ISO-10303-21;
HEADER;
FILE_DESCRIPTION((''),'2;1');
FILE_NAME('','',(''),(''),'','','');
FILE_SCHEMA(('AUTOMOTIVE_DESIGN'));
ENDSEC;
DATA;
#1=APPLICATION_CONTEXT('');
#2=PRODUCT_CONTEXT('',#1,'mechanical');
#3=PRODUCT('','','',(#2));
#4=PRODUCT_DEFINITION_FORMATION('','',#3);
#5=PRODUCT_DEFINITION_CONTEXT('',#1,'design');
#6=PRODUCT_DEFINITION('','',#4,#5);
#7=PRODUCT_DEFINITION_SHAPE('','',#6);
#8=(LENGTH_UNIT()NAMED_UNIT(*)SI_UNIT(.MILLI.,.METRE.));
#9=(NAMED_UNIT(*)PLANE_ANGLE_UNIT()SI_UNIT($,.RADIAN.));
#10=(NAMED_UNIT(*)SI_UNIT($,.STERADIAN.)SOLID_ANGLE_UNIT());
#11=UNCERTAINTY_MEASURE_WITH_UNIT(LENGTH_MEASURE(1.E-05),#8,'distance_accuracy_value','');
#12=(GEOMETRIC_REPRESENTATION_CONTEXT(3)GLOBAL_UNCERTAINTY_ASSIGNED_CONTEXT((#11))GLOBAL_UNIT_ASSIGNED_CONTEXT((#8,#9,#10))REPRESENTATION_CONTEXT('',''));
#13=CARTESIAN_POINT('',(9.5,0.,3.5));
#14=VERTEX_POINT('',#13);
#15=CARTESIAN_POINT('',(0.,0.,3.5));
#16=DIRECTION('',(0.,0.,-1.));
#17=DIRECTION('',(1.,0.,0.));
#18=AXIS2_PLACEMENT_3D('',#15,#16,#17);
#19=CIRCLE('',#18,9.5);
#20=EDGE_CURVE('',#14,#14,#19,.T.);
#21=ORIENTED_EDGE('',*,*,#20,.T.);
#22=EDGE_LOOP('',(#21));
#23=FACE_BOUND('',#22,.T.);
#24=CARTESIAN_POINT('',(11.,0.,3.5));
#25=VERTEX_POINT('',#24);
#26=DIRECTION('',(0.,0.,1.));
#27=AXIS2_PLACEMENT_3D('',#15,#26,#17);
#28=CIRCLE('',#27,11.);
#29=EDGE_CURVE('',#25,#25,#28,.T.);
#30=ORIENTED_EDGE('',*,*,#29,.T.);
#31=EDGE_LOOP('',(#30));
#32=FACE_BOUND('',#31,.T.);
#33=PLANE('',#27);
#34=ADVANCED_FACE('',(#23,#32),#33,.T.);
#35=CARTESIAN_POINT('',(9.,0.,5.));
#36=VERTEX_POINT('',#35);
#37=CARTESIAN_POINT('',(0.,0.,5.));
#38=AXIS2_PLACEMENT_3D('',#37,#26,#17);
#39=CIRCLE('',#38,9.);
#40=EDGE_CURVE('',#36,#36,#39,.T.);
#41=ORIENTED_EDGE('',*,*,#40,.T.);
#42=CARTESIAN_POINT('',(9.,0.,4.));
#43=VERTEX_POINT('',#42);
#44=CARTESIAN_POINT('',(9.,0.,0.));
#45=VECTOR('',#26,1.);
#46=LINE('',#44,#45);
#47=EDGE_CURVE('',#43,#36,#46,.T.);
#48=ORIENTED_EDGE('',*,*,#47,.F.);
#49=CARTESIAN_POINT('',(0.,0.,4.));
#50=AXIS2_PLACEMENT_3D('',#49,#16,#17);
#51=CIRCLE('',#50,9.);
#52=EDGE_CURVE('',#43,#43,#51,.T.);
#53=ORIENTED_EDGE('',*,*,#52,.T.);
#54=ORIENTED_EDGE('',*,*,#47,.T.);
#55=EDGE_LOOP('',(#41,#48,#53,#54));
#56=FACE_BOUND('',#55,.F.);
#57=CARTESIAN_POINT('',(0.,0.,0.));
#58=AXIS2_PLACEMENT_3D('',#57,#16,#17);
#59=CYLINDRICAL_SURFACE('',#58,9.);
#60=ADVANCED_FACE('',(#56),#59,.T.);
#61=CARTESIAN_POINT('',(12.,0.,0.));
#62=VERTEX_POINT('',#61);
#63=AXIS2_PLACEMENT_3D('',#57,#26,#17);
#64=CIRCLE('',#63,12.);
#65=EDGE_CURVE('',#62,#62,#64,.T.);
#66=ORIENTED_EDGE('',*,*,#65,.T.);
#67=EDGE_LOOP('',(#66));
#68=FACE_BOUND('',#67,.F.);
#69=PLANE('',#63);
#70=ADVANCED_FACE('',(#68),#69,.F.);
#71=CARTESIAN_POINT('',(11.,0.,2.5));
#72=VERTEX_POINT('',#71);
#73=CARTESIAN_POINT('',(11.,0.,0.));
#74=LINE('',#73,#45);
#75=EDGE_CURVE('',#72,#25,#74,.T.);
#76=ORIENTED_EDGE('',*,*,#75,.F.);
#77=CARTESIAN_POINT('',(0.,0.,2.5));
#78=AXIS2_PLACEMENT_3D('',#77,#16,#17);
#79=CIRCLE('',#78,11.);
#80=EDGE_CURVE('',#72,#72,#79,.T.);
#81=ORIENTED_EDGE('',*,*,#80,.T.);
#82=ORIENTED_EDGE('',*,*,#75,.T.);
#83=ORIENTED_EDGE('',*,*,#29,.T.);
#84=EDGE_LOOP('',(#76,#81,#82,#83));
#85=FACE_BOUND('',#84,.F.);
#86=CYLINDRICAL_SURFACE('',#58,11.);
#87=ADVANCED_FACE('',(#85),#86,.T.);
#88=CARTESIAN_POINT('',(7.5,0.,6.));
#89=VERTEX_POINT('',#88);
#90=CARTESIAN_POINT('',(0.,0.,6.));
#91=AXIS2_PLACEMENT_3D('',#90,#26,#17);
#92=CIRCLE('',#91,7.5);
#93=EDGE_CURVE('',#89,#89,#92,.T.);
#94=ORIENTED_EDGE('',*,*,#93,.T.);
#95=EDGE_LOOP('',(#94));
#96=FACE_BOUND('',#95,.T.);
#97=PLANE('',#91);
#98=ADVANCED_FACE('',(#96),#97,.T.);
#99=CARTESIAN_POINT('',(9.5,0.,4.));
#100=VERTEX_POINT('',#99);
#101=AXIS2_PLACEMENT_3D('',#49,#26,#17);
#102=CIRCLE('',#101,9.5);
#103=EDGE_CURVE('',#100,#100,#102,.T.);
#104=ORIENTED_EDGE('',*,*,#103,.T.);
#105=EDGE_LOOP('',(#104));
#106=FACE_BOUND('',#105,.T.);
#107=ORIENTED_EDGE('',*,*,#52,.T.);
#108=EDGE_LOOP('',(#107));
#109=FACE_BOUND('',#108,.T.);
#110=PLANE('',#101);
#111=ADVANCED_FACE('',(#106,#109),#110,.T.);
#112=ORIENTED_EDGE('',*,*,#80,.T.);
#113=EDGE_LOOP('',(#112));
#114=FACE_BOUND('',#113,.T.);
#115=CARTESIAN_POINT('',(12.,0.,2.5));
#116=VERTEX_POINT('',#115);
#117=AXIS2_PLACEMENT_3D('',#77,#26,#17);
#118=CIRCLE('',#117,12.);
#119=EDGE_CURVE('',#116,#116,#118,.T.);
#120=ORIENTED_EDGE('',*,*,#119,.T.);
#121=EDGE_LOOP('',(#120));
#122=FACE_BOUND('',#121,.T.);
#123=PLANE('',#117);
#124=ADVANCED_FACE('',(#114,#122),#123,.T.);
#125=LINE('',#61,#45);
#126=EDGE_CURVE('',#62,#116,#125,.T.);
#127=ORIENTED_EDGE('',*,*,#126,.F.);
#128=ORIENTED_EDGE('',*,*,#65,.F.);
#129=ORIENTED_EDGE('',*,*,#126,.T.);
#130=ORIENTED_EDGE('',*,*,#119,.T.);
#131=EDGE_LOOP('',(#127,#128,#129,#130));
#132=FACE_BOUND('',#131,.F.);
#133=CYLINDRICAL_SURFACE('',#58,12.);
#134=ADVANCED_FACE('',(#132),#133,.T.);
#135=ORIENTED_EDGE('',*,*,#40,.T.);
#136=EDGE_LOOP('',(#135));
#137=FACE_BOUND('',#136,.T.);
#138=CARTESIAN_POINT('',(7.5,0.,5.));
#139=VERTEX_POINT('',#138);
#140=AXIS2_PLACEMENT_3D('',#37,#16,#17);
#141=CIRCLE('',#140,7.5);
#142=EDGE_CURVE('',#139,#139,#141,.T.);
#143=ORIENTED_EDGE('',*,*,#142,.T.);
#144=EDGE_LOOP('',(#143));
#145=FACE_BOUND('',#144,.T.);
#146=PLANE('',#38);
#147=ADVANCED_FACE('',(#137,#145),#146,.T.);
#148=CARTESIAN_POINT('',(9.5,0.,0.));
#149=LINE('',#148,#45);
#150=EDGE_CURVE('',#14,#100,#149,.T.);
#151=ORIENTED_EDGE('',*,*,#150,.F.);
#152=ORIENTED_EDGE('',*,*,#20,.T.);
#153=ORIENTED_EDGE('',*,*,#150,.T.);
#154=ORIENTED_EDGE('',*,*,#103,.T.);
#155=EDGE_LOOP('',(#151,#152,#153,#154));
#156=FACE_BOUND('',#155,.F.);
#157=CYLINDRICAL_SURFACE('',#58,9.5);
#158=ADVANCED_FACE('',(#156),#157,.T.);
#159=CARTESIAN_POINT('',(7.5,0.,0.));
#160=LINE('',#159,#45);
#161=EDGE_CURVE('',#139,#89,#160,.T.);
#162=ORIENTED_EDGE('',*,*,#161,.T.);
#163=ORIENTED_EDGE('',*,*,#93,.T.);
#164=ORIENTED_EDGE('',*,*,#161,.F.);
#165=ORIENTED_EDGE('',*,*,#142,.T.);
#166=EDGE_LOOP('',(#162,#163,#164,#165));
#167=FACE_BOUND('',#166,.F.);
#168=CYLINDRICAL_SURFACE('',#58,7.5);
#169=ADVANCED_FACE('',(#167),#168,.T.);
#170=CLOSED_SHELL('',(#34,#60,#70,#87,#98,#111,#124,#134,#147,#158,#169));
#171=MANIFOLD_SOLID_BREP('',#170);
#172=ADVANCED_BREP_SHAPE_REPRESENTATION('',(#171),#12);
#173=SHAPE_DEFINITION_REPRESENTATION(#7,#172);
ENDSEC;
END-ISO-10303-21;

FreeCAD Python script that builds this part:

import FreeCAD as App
import Part
import Sketcher

V = App.Vector

doc = App.newDocument("Part")
params = doc.addObject("Spreadsheet::Sheet", "Params")
for row, (alias, value) in enumerate([
    ("sketch1_diameter", "18 mm"),
    ("pad1_length", "5 mm"),
    ("sketch2_diameter", "19 mm"),
    ("pad2_length", "4 mm"),
    ("sketch3_diameter", "22 mm"),
    ("pad3_length", "3.5 mm"),
    ("sketch4_diameter", "24 mm"),
    ("pad4_length", "2.5 mm"),
    ("sketch5_diameter", "15 mm"),
    ("pad5_length", "6 mm"),
], start=1):
    params.set(f"A{row}", alias)
    params.set(f"B{row}", "=" + value)
    params.setAlias(f"B{row}", alias)

body = doc.addObject("PartDesign::Body", "Body")

sketch1 = doc.addObject("Sketcher::SketchObject", "Sketch")
body.addObject(sketch1)
sketch1.AttachmentSupport = (doc.XY_Plane, [""])
sketch1.MapMode = "FlatFace"
sketch1.addGeometry(Part.Circle(V(0, 0, 0), V(0, 0, 1), 9), False)
sketch1.addConstraint(Sketcher.Constraint("Coincident", 0, 3, -1, 1))
sketch1.addConstraint(Sketcher.Constraint("Diameter", 0, 18.0))
sketch1.setExpression("Constraints[1]", "Params.sketch1_diameter")
pad1 = doc.addObject("PartDesign::Pad", "Pad")
body.addObject(pad1)
pad1.Profile = sketch1
pad1.setExpression("Length", "Params.pad1_length")
body2 = doc.addObject("PartDesign::Body", "Body001")

sketch2 = doc.addObject("Sketcher::SketchObject", "Sketch001")
body2.addObject(sketch2)
sketch2.AttachmentSupport = (doc.getObject("XY_Plane001"), [""])
sketch2.MapMode = "FlatFace"
sketch2.addGeometry(Part.Circle(V(0, 0, 0), V(0, 0, 1), 9.5), False)
sketch2.addConstraint(Sketcher.Constraint("Coincident", 0, 3, -1, 1))
sketch2.addConstraint(Sketcher.Constraint("Diameter", 0, 19.0))
sketch2.setExpression("Constraints[1]", "Params.sketch2_diameter")
pad2 = doc.addObject("PartDesign::Pad", "Pad001")
body2.addObject(pad2)
pad2.Profile = sketch2
pad2.setExpression("Length", "Params.pad2_length")
body3 = doc.addObject("PartDesign::Body", "Body002")

sketch3 = doc.addObject("Sketcher::SketchObject", "Sketch002")
body3.addObject(sketch3)
sketch3.AttachmentSupport = (doc.getObject("XY_Plane002"), [""])
sketch3.MapMode = "FlatFace"
sketch3.addGeometry(Part.Circle(V(0, 0, 0), V(0, 0, 1), 11), False)
sketch3.addConstraint(Sketcher.Constraint("Coincident", 0, 3, -1, 1))
sketch3.addConstraint(Sketcher.Constraint("Diameter", 0, 22.0))
sketch3.setExpression("Constraints[1]", "Params.sketch3_diameter")
pad3 = doc.addObject("PartDesign::Pad", "Pad002")
body3.addObject(pad3)
pad3.Profile = sketch3
pad3.setExpression("Length", "Params.pad3_length")
body4 = doc.addObject("PartDesign::Body", "Body003")

sketch4 = doc.addObject("Sketcher::SketchObject", "Sketch003")
body4.addObject(sketch4)
sketch4.AttachmentSupport = (doc.getObject("XY_Plane003"), [""])
sketch4.MapMode = "FlatFace"
sketch4.addGeometry(Part.Circle(V(0, 0, 0), V(0, 0, 1), 12), False)
sketch4.addConstraint(Sketcher.Constraint("Coincident", 0, 3, -1, 1))
sketch4.addConstraint(Sketcher.Constraint("Diameter", 0, 24.0))
sketch4.setExpression("Constraints[1]", "Params.sketch4_diameter")
pad4 = doc.addObject("PartDesign::Pad", "Pad003")
body4.addObject(pad4)
pad4.Profile = sketch4
pad4.setExpression("Length", "Params.pad4_length")
body5 = doc.addObject("PartDesign::Body", "Body004")

sketch5 = doc.addObject("Sketcher::SketchObject", "Sketch004")
body5.addObject(sketch5)
sketch5.AttachmentSupport = (doc.getObject("XY_Plane004"), [""])
sketch5.MapMode = "FlatFace"
sketch5.addGeometry(Part.Circle(V(0, 0, 0), V(0, 0, 1), 7.5), False)
sketch5.addConstraint(Sketcher.Constraint("Coincident", 0, 3, -1, 1))
sketch5.addConstraint(Sketcher.Constraint("Diameter", 0, 15.0))
sketch5.setExpression("Constraints[1]", "Params.sketch5_diameter")
pad5 = doc.addObject("PartDesign::Pad", "Pad004")
body5.addObject(pad5)
pad5.Profile = sketch5
pad5.setExpression("Length", "Params.pad5_length")
doc.recompute()

boolean = doc.addObject("PartDesign::Boolean", "Boolean")
body5.addObject(boolean)
boolean.Type = "Fuse"
boolean.addObjects([body])
doc.recompute()

boolean2 = doc.addObject("PartDesign::Boolean", "Boolean001")
body5.addObject(boolean2)
boolean2.Type = "Fuse"
boolean2.addObjects([body2])
doc.recompute()

boolean3 = doc.addObject("PartDesign::Boolean", "Boolean002")
body5.addObject(boolean3)
boolean3.Type = "Fuse"
boolean3.addObjects([body3])
doc.recompute()

boolean4 = doc.addObject("PartDesign::Boolean", "Boolean003")
body5.addObject(boolean4)
boolean4.Type = "Fuse"
boolean4.addObjects([body4])

doc.recompute()
